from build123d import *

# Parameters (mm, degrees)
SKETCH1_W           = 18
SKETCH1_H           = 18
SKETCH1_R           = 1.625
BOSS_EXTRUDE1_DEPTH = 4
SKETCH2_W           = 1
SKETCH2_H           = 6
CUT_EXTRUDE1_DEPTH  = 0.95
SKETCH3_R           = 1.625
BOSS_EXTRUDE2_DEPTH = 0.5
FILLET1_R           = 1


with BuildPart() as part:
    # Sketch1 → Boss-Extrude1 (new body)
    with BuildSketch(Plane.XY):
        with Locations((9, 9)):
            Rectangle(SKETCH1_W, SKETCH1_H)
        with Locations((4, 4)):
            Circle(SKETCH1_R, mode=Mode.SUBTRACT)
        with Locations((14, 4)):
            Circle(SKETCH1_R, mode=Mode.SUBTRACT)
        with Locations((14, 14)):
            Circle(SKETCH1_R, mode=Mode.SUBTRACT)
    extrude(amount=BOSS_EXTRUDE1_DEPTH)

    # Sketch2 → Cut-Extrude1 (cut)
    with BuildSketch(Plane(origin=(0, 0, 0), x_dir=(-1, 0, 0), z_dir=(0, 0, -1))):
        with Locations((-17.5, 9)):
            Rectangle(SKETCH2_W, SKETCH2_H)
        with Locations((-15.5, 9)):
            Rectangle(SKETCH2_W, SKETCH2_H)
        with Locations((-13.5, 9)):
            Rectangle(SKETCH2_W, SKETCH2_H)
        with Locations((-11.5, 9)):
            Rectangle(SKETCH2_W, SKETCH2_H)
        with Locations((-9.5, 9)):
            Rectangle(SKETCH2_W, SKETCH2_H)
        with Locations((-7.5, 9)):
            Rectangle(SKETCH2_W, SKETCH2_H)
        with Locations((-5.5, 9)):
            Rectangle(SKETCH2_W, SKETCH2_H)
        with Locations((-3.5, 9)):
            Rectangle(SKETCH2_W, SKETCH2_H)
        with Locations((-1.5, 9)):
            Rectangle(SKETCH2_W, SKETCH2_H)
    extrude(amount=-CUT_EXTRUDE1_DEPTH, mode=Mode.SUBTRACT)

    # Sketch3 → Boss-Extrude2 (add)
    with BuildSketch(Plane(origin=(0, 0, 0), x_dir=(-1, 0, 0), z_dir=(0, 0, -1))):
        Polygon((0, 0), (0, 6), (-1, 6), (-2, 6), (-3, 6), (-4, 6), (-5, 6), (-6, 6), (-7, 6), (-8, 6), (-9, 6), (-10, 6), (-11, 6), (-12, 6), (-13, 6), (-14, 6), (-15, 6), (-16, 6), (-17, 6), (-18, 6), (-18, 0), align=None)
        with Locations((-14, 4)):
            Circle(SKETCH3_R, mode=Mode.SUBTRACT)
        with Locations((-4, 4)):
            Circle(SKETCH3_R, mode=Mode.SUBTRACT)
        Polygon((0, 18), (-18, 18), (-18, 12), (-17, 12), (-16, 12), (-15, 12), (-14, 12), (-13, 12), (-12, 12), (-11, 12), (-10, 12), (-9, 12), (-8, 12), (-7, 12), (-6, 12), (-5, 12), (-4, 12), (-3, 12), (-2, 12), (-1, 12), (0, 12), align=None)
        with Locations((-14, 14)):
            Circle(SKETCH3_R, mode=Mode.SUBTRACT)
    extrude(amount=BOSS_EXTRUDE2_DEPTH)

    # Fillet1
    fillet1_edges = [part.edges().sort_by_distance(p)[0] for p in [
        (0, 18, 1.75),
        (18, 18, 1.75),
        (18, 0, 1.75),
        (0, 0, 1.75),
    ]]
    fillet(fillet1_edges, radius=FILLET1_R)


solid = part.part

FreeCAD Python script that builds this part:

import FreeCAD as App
import Part
import Sketcher
Q = App.Units.Quantity


def edges_at(feature, points):
    """Names of the edges that pass closest to the given points."""
    edges = feature.Shape.Edges
    near = lambda p: min(range(len(edges)), key=lambda i: edges[i].distToShape(Part.Vertex(*p))[0])
    return sorted({f"Edge{near(p) + 1}" for p in points})


def add_polygon(sketch, points):
    """Adds a closed chain of lines whose ends are joined by coincident constraints."""
    first, n = sketch.GeometryCount, len(points)
    for a, b in zip(points, points[1:] + points[:1]):
        sketch.addGeometry(Part.LineSegment(App.Vector(*a, 0), App.Vector(*b, 0)), False)
    for i in range(n):
        sketch.addConstraint(Sketcher.Constraint("Coincident", first + i, 2, first + (i + 1) % n, 1))

doc = App.newDocument("Part")
body = doc.addObject("PartDesign::Body", "Body")

# Sketch on XY plane
sketch1 = body.newObject("Sketcher::SketchObject", "Sketch")
sketch1.AttachmentSupport = (doc.getObject("XY_Plane"), [""])
sketch1.MapMode = "FlatFace"
add_polygon(sketch1, [(0, 18), (0, 0), (18, 0), (18, 18)])  # lines 0-3
sketch1.addGeometry(Part.Circle(App.Vector(4, 4, 0), App.Vector(0, 0, 1), 1.625), False)  # 4
sketch1.addGeometry(Part.Circle(App.Vector(14, 4, 0), App.Vector(0, 0, 1), 1.625), False)  # 5
sketch1.addGeometry(Part.Circle(App.Vector(14, 14, 0), App.Vector(0, 0, 1), 1.625), False)  # 6
sketch1.addConstraint(Sketcher.Constraint("Vertical", 0))
sketch1.addConstraint(Sketcher.Constraint("Horizontal", 1))
sketch1.addConstraint(Sketcher.Constraint("Vertical", 2))
sketch1.addConstraint(Sketcher.Constraint("Horizontal", 3))
sketch1.addConstraint(Sketcher.Constraint("Coincident", 0, 2, -1, 1))
sketch1.addConstraint(Sketcher.Constraint("Equal", 4, 5))
sketch1.addConstraint(Sketcher.Constraint("Equal", 5, 6))
sketch1.addConstraint(Sketcher.Constraint("Horizontal", 4, 3, 5, 3))
sketch1.addConstraint(Sketcher.Constraint("Vertical", 5, 3, 6, 3))
sketch1.addConstraint(Sketcher.Constraint("Equal", 3, 0))
sketch1.addConstraint(Sketcher.Constraint("Diameter", 4, Q("3.25 mm")))
sketch1.addConstraint(Sketcher.Constraint("DistanceX", 1, 1, 1, 2, Q("18 mm")))
sketch1.addConstraint(Sketcher.Constraint("DistanceX", -1, 1, 4, 3, Q("4 mm")))
sketch1.addConstraint(Sketcher.Constraint("DistanceY", -1, 1, 4, 3, Q("4 mm")))
sketch1.addConstraint(Sketcher.Constraint("DistanceX", -1, 1, 5, 3, Q("14 mm")))
sketch1.addConstraint(Sketcher.Constraint("DistanceY", -1, 1, 6, 3, Q("14 mm")))
pad1 = body.newObject("PartDesign::Pad", "Pad")
pad1.Profile = sketch1
pad1.Length = 4

# Sketch on XY plane
sketch2 = body.newObject("Sketcher::SketchObject", "Sketch001")
sketch2.AttachmentSupport = (doc.getObject("XY_Plane"), [""])
sketch2.MapMode = "FlatFace"
add_polygon(sketch2, [(18, 12), (18, 6), (17, 6), (17, 12)])  # lines 0-3
add_polygon(sketch2, [(16, 12), (16, 6), (15, 6), (15, 12)])  # lines 4-7
add_polygon(sketch2, [(14, 12), (14, 6), (13, 6), (13, 12)])  # lines 8-11
add_polygon(sketch2, [(12, 12), (12, 6), (11, 6), (11, 12)])  # lines 12-15
add_polygon(sketch2, [(10, 12), (10, 6), (9, 6), (9, 12)])  # lines 16-19
add_polygon(sketch2, [(8, 12), (8, 6), (7, 6), (7, 12)])  # lines 20-23
add_polygon(sketch2, [(6, 12), (6, 6), (5, 6), (5, 12)])  # lines 24-27
add_polygon(sketch2, [(4, 12), (4, 6), (3, 6), (3, 12)])  # lines 28-31
add_polygon(sketch2, [(2, 12), (2, 6), (1, 6), (1, 12)])  # lines 32-35
sketch2.addConstraint(Sketcher.Constraint("Vertical", 0))
sketch2.addConstraint(Sketcher.Constraint("Horizontal", 1))
sketch2.addConstraint(Sketcher.Constraint("Vertical", 2))
sketch2.addConstraint(Sketcher.Constraint("Horizontal", 3))
sketch2.addConstraint(Sketcher.Constraint("Vertical", 4))
sketch2.addConstraint(Sketcher.Constraint("Horizontal", 5))
sketch2.addConstraint(Sketcher.Constraint("Vertical", 6))
sketch2.addConstraint(Sketcher.Constraint("Horizontal", 7))
sketch2.addConstraint(Sketcher.Constraint("Vertical", 8))
sketch2.addConstraint(Sketcher.Constraint("Horizontal", 9))
sketch2.addConstraint(Sketcher.Constraint("Vertical", 10))
sketch2.addConstraint(Sketcher.Constraint("Horizontal", 11))
sketch2.addConstraint(Sketcher.Constraint("Vertical", 12))
sketch2.addConstraint(Sketcher.Constraint("Horizontal", 13))
sketch2.addConstraint(Sketcher.Constraint("Vertical", 14))
sketch2.addConstraint(Sketcher.Constraint("Horizontal", 15))
sketch2.addConstraint(Sketcher.Constraint("Vertical", 16))
sketch2.addConstraint(Sketcher.Constraint("Horizontal", 17))
sketch2.addConstraint(Sketcher.Constraint("Vertical", 18))
sketch2.addConstraint(Sketcher.Constraint("Horizontal", 19))
sketch2.addConstraint(Sketcher.Constraint("Vertical", 20))
sketch2.addConstraint(Sketcher.Constraint("Horizontal", 21))
sketch2.addConstraint(Sketcher.Constraint("Vertical", 22))
sketch2.addConstraint(Sketcher.Constraint("Horizontal", 23))
sketch2.addConstraint(Sketcher.Constraint("Vertical", 24))
sketch2.addConstraint(Sketcher.Constraint("Horizontal", 25))
sketch2.addConstraint(Sketcher.Constraint("Vertical", 26))
sketch2.addConstraint(Sketcher.Constraint("Horizontal", 27))
sketch2.addConstraint(Sketcher.Constraint("Vertical", 28))
sketch2.addConstraint(Sketcher.Constraint("Horizontal", 29))
sketch2.addConstraint(Sketcher.Constraint("Vertical", 30))
sketch2.addConstraint(Sketcher.Constraint("Horizontal", 31))
sketch2.addConstraint(Sketcher.Constraint("Vertical", 32))
sketch2.addConstraint(Sketcher.Constraint("Horizontal", 33))
sketch2.addConstraint(Sketcher.Constraint("Vertical", 34))
sketch2.addConstraint(Sketcher.Constraint("Horizontal", 35))
sketch2.addConstraint(Sketcher.Constraint("Horizontal", 1, 2, 4, 2))
sketch2.addConstraint(Sketcher.Constraint("Horizontal", 3, 2, 6, 2))
sketch2.addConstraint(Sketcher.Constraint("Horizontal", 5, 2, 8, 2))
sketch2.addConstraint(Sketcher.Constraint("Horizontal", 7, 2, 10, 2))
sketch2.addConstraint(Sketcher.Constraint("Horizontal", 9, 2, 12, 2))
sketch2.addConstraint(Sketcher.Constraint("Horizontal", 11, 2, 14, 2))
sketch2.addConstraint(Sketcher.Constraint("Horizontal", 13, 2, 16, 2))
sketch2.addConstraint(Sketcher.Constraint("Horizontal", 15, 2, 18, 2))
sketch2.addConstraint(Sketcher.Constraint("Horizontal", 17, 2, 20, 2))
sketch2.addConstraint(Sketcher.Constraint("Horizontal", 19, 2, 22, 2))
sketch2.addConstraint(Sketcher.Constraint("Horizontal", 21, 2, 24, 2))
sketch2.addConstraint(Sketcher.Constraint("Horizontal", 23, 2, 26, 2))
sketch2.addConstraint(Sketcher.Constraint("Horizontal", 25, 2, 28, 2))
sketch2.addConstraint(Sketcher.Constraint("Horizontal", 27, 2, 30, 2))
sketch2.addConstraint(Sketcher.Constraint("Horizontal", 29, 2, 32, 2))
sketch2.addConstraint(Sketcher.Constraint("Horizontal", 31, 2, 34, 2))
sketch2.addConstraint(Sketcher.Constraint("Equal", 3, 5))
sketch2.addConstraint(Sketcher.Constraint("Equal", 7, 9))
sketch2.addConstraint(Sketcher.Constraint("Equal", 11, 13))
sketch2.addConstraint(Sketcher.Constraint("Equal", 15, 17))
sketch2.addConstraint(Sketcher.Constraint("Equal", 19, 21))
sketch2.addConstraint(Sketcher.Constraint("Equal", 23, 25))
sketch2.addConstraint(Sketcher.Constraint("Equal", 27, 29))
sketch2.addConstraint(Sketcher.Constraint("Equal", 31, 33))
sketch2.addConstraint(Sketcher.Constraint("DistanceX", 1, 2, 1, 1, Q("1 mm")))
sketch2.addConstraint(Sketcher.Constraint("DistanceY", 0, 2, 0, 1, Q("6 mm")))
sketch2.addConstraint(Sketcher.Constraint("DistanceX", -1, 1, 0, 2, Q("18 mm")))
sketch2.addConstraint(Sketcher.Constraint("DistanceY", -1, 1, 0, 2, Q("6 mm")))
sketch2.addConstraint(Sketcher.Constraint("DistanceX", -1, 1, 4, 2, Q("16 mm")))
sketch2.addConstraint(Sketcher.Constraint("DistanceX", -1, 1, 8, 2, Q("14 mm")))
sketch2.addConstraint(Sketcher.Constraint("DistanceX", -1, 1, 12, 2, Q("12 mm")))
sketch2.addConstraint(Sketcher.Constraint("DistanceX", -1, 1, 16, 2, Q("10 mm")))
sketch2.addConstraint(Sketcher.Constraint("DistanceX", -1, 1, 20, 2, Q("8 mm")))
sketch2.addConstraint(Sketcher.Constraint("DistanceX", -1, 1, 24, 2, Q("6 mm")))
sketch2.addConstraint(Sketcher.Constraint("DistanceX", -1, 1, 28, 2, Q("4 mm")))
sketch2.addConstraint(Sketcher.Constraint("DistanceX", -1, 1, 32, 2, Q("2 mm")))
pocket1 = body.newObject("PartDesign::Pocket", "Pocket")
pocket1.Profile = sketch2
pocket1.Length = 0.95
pocket1.Reversed = True

# Sketch on XY plane
sketch3 = body.newObject("Sketcher::SketchObject", "Sketch002")
sketch3.AttachmentSupport = (doc.getObject("XY_Plane"), [""])
sketch3.MapMode = "FlatFace"
add_polygon(sketch3, [(0, 0), (0, 6), (18, 6), (18, 0)])  # lines 0-3
sketch3.addGeometry(Part.Circle(App.Vector(14, 4, 0), App.Vector(0, 0, 1), 1.625), False)  # 4
sketch3.addGeometry(Part.Circle(App.Vector(4, 4, 0), App.Vector(0, 0, 1), 1.625), False)  # 5
add_polygon(sketch3, [(0, 18), (18, 18), (18, 12), (0, 12)])  # lines 6-9
sketch3.addGeometry(Part.Circle(App.Vector(14, 14, 0), App.Vector(0, 0, 1), 1.625), False)  # 10
sketch3.addConstraint(Sketcher.Constraint("Vertical", 0))
sketch3.addConstraint(Sketcher.Constraint("Horizontal", 1))
sketch3.addConstraint(Sketcher.Constraint("Vertical", 2))
sketch3.addConstraint(Sketcher.Constraint("Horizontal", 3))
sketch3.addConstraint(Sketcher.Constraint("Horizontal", 6))
sketch3.addConstraint(Sketcher.Constraint("Vertical", 7))
sketch3.addConstraint(Sketcher.Constraint("Horizontal", 8))
sketch3.addConstraint(Sketcher.Constraint("Vertical", 9))
sketch3.addConstraint(Sketcher.Constraint("Coincident", 3, 2, -1, 1))
sketch3.addConstraint(Sketcher.Constraint("Equal", 4, 5))
sketch3.addConstraint(Sketcher.Constraint("Equal", 5, 10))
sketch3.addConstraint(Sketcher.Constraint("PointOnObject", 8, 2, -2))
sketch3.addConstraint(Sketcher.Constraint("Horizontal", 4, 3, 5, 3))
sketch3.addConstraint(Sketcher.Constraint("Vertical", 4, 3, 10, 3))
sketch3.addConstraint(Sketcher.Constraint("Vertical", 2, 2, 6, 2))
sketch3.addConstraint(Sketcher.Constraint("Equal", 2, 7))
sketch3.addConstraint(Sketcher.Constraint("Diameter", 4, Q("3.25 mm")))
sketch3.addConstraint(Sketcher.Constraint("DistanceX", 1, 1, 1, 2, Q("18 mm")))
sketch3.addConstraint(Sketcher.Constraint("DistanceY", 0, 1, 0, 2, Q("6 mm")))
sketch3.addConstraint(Sketcher.Constraint("DistanceX", -1, 1, 4, 3, Q("14 mm")))
sketch3.addConstraint(Sketcher.Constraint("DistanceY", -1, 1, 4, 3, Q("4 mm")))
sketch3.addConstraint(Sketcher.Constraint("DistanceX", -1, 1, 5, 3, Q("4 mm")))
sketch3.addConstraint(Sketcher.Constraint("DistanceY", -1, 1, 10, 3, Q("14 mm")))
sketch3.addConstraint(Sketcher.Constraint("DistanceY", -1, 1, 6, 2, Q("18 mm")))
pad2 = body.newObject("PartDesign::Pad", "Pad001")
pad2.Profile = sketch3
pad2.Length = 0.5
pad2.Reversed = True
doc.recompute()

fillet = body.newObject("PartDesign::Fillet", "Fillet")
fillet.Base = (pad2, edges_at(pad2, [
    (0, 18, 1.75),
    (18, 18, 1.75),
    (18, 0, 1.75),
    (0, 0, 1.75),
]))
fillet.Radius = 1

doc.recompute()
